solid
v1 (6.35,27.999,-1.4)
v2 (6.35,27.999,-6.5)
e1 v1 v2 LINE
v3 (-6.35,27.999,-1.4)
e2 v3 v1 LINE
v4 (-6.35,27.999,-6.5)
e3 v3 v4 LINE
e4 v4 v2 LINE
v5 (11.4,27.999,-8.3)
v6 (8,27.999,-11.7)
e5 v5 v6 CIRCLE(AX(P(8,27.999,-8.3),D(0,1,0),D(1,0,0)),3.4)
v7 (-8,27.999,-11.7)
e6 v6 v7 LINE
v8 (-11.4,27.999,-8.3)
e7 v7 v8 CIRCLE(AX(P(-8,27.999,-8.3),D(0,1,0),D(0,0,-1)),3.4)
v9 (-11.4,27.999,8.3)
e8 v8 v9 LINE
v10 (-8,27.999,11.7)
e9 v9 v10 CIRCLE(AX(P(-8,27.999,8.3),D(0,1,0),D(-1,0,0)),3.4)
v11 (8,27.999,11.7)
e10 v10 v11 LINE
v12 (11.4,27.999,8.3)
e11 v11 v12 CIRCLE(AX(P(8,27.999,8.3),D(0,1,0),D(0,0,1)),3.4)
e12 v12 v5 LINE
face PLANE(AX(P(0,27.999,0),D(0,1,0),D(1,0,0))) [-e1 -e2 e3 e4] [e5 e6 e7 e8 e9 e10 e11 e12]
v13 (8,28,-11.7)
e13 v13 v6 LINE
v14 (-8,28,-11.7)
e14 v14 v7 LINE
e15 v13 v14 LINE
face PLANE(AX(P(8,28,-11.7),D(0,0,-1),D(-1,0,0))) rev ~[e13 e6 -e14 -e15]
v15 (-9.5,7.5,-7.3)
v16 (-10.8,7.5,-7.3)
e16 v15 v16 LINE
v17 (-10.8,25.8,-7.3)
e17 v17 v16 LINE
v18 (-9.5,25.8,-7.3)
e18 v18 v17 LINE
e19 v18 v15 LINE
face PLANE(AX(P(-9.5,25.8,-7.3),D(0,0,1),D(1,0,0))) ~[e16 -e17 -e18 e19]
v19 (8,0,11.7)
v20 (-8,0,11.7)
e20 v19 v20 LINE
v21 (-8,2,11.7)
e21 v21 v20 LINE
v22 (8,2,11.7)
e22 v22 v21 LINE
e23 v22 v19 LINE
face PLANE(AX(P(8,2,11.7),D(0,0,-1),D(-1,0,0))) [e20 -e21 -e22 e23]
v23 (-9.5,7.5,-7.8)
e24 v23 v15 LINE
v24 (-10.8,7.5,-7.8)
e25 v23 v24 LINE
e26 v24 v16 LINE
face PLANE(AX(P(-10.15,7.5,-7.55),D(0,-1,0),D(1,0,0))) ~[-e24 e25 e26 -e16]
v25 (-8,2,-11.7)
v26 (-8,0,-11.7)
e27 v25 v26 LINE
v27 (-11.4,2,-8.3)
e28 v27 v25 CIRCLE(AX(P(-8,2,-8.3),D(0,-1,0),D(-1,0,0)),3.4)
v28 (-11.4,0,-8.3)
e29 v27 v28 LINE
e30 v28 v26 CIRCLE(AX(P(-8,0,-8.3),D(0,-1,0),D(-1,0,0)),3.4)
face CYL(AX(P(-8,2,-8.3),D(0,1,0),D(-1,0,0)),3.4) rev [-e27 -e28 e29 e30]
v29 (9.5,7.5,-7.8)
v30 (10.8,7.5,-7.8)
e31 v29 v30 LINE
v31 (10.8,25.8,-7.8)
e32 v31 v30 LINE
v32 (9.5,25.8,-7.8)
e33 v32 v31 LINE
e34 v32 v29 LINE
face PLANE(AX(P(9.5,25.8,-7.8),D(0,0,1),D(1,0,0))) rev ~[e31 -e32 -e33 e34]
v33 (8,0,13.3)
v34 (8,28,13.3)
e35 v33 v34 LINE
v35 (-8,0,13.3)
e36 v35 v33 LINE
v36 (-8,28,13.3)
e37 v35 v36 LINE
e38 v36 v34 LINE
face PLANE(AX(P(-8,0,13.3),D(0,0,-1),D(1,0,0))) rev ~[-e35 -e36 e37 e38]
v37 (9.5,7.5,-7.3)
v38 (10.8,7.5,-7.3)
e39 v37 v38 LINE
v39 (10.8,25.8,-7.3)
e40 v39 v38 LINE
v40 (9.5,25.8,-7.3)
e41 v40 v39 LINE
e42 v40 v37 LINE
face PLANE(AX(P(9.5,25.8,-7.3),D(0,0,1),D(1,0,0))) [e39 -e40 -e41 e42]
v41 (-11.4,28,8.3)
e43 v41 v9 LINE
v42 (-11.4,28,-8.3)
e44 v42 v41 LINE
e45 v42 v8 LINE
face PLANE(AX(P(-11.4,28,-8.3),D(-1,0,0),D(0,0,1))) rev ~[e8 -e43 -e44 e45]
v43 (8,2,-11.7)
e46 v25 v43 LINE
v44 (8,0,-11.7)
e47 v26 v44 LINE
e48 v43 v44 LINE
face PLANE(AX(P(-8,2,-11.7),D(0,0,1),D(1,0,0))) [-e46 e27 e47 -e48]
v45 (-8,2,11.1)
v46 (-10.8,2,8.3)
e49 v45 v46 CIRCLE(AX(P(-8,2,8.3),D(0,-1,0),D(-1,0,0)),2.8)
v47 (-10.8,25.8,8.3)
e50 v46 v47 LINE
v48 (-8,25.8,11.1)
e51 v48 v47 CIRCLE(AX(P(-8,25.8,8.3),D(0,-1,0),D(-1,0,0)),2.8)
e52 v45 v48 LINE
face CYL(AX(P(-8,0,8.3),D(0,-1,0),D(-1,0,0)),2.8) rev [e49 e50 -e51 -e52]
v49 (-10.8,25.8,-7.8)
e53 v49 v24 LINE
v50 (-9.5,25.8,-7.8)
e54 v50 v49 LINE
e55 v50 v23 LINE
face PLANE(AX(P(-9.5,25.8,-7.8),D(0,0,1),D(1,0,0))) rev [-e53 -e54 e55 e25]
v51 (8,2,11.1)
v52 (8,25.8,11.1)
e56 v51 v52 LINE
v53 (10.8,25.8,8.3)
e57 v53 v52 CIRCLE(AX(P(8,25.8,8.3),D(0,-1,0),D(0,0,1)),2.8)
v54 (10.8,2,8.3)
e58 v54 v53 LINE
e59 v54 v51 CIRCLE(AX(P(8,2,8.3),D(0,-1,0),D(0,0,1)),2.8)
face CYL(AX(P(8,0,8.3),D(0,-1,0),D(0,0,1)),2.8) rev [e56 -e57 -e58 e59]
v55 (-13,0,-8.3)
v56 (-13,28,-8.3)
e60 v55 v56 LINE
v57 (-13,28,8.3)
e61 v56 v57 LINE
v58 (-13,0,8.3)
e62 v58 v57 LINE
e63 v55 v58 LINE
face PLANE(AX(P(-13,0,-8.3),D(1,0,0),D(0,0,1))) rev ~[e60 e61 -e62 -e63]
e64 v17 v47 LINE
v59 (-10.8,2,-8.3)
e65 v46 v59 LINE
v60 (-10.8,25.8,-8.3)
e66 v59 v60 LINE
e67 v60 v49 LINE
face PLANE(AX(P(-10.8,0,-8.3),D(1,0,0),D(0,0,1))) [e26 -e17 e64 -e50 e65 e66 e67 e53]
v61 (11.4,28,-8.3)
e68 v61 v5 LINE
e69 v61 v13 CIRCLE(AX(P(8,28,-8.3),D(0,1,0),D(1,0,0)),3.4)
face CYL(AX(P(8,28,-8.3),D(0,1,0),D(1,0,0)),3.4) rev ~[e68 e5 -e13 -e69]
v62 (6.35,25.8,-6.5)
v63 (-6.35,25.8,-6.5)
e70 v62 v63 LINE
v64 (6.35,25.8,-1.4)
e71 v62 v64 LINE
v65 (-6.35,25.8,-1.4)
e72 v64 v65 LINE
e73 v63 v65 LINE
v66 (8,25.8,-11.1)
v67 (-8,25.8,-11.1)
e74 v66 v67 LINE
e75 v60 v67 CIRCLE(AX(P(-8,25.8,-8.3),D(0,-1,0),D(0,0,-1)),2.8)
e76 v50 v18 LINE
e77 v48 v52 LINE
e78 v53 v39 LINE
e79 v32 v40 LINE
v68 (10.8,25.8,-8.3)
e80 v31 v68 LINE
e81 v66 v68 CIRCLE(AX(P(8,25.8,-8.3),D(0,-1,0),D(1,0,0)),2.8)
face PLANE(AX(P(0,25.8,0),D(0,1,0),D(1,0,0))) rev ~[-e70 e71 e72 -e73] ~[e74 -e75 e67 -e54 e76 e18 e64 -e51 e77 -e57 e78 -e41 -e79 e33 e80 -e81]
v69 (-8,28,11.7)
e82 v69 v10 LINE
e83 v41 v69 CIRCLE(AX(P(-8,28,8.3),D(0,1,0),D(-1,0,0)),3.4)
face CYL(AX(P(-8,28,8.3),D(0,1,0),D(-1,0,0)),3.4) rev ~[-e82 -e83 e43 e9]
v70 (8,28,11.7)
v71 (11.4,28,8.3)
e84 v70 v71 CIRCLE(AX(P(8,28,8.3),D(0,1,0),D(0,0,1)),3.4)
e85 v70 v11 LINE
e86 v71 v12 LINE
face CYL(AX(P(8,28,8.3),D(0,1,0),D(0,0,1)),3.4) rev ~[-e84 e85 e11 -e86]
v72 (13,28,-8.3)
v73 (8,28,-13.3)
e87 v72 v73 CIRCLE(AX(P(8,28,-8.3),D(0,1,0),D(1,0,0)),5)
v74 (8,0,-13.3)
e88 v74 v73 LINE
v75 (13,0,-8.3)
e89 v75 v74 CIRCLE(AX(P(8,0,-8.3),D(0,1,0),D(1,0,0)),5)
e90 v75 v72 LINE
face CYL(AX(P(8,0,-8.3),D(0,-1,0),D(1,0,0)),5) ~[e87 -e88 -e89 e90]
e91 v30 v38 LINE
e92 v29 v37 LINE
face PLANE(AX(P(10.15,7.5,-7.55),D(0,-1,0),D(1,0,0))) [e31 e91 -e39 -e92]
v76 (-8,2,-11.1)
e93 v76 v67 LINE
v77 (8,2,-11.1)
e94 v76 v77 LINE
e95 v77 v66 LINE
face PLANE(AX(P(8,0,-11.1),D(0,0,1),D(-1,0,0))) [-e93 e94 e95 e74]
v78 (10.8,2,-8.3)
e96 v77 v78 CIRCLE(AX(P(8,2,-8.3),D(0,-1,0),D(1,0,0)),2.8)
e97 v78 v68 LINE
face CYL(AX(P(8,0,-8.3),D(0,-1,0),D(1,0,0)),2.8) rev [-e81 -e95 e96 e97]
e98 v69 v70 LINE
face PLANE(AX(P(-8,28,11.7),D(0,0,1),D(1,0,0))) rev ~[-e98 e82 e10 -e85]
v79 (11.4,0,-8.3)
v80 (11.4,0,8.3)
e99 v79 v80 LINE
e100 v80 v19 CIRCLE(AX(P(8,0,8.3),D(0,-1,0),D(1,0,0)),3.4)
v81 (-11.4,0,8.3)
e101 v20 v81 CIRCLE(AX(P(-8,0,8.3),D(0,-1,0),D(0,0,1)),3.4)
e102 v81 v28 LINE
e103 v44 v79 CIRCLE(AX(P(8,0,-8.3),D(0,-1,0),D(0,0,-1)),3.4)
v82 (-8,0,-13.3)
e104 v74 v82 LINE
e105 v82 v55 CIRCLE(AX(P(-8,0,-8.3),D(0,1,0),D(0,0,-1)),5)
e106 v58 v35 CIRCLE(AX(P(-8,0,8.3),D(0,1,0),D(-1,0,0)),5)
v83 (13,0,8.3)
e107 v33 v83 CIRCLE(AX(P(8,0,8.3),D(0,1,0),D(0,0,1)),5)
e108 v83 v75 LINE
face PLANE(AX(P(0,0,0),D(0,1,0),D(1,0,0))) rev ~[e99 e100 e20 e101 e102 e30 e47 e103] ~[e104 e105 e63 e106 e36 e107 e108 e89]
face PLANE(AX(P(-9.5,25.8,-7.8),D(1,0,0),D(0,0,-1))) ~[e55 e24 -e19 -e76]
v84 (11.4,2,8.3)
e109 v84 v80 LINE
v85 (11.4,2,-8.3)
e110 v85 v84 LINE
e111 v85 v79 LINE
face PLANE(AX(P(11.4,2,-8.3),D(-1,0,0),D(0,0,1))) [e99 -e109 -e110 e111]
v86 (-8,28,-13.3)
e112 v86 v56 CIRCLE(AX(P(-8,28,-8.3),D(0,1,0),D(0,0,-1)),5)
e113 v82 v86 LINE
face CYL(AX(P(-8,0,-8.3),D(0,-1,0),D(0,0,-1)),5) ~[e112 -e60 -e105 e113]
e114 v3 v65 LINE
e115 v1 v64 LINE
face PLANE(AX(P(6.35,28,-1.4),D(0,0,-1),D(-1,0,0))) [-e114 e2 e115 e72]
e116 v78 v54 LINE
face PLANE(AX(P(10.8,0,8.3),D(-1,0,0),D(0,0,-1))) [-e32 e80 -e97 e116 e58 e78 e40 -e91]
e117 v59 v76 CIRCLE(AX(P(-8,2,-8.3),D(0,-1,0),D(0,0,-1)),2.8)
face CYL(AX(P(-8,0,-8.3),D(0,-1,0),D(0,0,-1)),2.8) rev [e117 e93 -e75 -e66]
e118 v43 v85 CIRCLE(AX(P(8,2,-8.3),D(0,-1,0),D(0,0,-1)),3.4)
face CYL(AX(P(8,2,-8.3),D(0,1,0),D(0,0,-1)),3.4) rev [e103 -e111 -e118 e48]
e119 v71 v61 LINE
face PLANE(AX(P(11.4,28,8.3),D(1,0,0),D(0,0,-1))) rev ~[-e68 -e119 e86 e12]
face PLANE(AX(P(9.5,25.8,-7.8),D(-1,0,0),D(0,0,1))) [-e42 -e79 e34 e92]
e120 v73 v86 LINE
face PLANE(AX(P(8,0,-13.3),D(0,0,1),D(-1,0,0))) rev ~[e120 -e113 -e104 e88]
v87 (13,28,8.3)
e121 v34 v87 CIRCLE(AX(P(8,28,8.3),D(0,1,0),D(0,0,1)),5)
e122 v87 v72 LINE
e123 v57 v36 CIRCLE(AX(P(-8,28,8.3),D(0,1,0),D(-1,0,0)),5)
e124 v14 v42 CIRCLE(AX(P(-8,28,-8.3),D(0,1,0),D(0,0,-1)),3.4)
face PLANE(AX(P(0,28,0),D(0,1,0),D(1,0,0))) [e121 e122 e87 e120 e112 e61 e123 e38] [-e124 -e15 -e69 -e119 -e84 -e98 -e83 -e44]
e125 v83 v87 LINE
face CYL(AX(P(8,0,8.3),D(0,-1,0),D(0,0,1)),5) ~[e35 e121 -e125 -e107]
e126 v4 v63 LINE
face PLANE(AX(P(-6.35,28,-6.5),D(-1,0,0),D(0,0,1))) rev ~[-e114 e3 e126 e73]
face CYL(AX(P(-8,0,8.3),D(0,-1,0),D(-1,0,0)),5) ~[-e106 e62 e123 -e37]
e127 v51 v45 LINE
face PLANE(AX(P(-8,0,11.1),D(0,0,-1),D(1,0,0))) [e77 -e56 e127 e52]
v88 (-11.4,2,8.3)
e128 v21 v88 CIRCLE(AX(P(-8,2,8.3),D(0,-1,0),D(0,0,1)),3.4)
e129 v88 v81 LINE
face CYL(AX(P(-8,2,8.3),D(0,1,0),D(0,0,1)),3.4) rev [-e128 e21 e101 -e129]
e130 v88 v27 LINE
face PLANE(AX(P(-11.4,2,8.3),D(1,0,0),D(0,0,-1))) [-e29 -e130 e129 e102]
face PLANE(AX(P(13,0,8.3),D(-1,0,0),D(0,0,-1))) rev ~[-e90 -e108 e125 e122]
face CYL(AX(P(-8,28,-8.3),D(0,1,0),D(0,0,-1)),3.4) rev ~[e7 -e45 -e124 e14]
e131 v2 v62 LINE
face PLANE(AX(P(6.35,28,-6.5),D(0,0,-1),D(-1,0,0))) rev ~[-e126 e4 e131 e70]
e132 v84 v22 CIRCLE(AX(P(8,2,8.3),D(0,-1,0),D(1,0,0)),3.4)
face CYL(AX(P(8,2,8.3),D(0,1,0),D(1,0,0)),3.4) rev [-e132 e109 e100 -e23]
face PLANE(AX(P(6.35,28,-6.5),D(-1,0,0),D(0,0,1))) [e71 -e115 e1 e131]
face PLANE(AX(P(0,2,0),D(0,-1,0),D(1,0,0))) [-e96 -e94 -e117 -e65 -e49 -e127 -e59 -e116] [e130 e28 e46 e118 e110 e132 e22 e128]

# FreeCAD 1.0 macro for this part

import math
import FreeCAD as App
import Part
import Sketcher

V = App.Vector
Q = App.Units.Quantity


def faces_at(feature, points):
    """Names of the faces that lie closest to the given points."""
    faces = feature.Shape.Faces
    near = lambda p: min(range(len(faces)), key=lambda i: faces[i].distToShape(Part.Vertex(*p))[0])
    return sorted({f"Face{near(p) + 1}" for p in points})

doc = App.newDocument("Part")
body = doc.addObject("PartDesign::Body", "Body")

sketch1 = body.newObject("Sketcher::SketchObject", "Sketch")
sketch1.AttachmentSupport = (doc.getObject("XZ_Plane"), [""])
sketch1.MapMode = "FlatFace"
sketch1.addGeometry(Part.LineSegment(V(-8, 13, 0), V(8, 13, 0)), False)
sketch1.addGeometry(Part.ArcOfCircle(Part.Circle(V(8, 8, 0), V(0, 0, 1), 5), math.radians(0), math.radians(90)), False)
sketch1.addGeometry(Part.LineSegment(V(13, 8, 0), V(13, -8, 0)), False)
sketch1.addGeometry(Part.ArcOfCircle(Part.Circle(V(8, -8, 0), V(0, 0, 1), 5), math.radians(-90), math.radians(0)), False)
sketch1.addGeometry(Part.LineSegment(V(8, -13, 0), V(-8, -13, 0)), False)
sketch1.addGeometry(Part.ArcOfCircle(Part.Circle(V(-8, -8, 0), V(0, 0, 1), 5), math.radians(180), math.radians(270)), False)
sketch1.addGeometry(Part.LineSegment(V(-13, -8, 0), V(-13, 8, 0)), False)
sketch1.addGeometry(Part.ArcOfCircle(Part.Circle(V(-8, 8, 0), V(0, 0, 1), 5), math.radians(90), math.radians(180)), False)
sketch1.addConstraint(Sketcher.Constraint("Tangent", 0, 2, 1, 2))
sketch1.addConstraint(Sketcher.Constraint("Tangent", 1, 1, 2, 1))
sketch1.addConstraint(Sketcher.Constraint("Tangent", 2, 2, 3, 2))
sketch1.addConstraint(Sketcher.Constraint("Tangent", 3, 1, 4, 1))
sketch1.addConstraint(Sketcher.Constraint("Tangent", 4, 2, 5, 2))
sketch1.addConstraint(Sketcher.Constraint("Tangent", 5, 1, 6, 1))
sketch1.addConstraint(Sketcher.Constraint("Tangent", 6, 2, 7, 2))
sketch1.addConstraint(Sketcher.Constraint("Tangent", 7, 1, 0, 1))
sketch1.addConstraint(Sketcher.Constraint("Horizontal", 0))
sketch1.addConstraint(Sketcher.Constraint("Vertical", 2))
sketch1.addConstraint(Sketcher.Constraint("Horizontal", 4))
sketch1.addConstraint(Sketcher.Constraint("Vertical", 6))
sketch1.addConstraint(Sketcher.Constraint("Equal", 1, 3))
sketch1.addConstraint(Sketcher.Constraint("Equal", 3, 5))
sketch1.addConstraint(Sketcher.Constraint("Equal", 5, 7))
sketch1.addConstraint(Sketcher.Constraint("Symmetric", 1, 3, 5, 3, -1, 1))
sketch1.addConstraint(Sketcher.Constraint("Radius", 1, Q("5 mm")))
sketch1.addConstraint(Sketcher.Constraint("DistanceX", 0, 1, 0, 2, Q("16 mm")))
sketch1.addConstraint(Sketcher.Constraint("DistanceY", 2, 2, 2, 1, Q("16.6 mm")))
pad1 = body.newObject("PartDesign::Pad", "Pad")
pad1.Profile = sketch1
pad1.Length = 28
pad1.Reversed = True
doc.recompute()

thickness = body.newObject("PartDesign::Thickness", "Thickness")
thickness.Base = (pad1, faces_at(pad1, [(0, 0, 0)]))
thickness.Value = 2.2
thickness.Reversed = True
thickness.Join = "Intersection"

sketch2 = body.newObject("Sketcher::SketchObject", "Sketch001")
sketch2.AttachmentSupport = (doc.getObject("XZ_Plane"), [""])
sketch2.MapMode = "FlatFace"
sketch2.AttachmentOffset = App.Placement(V(0, 0, -28), App.Rotation())
sketch2.addGeometry(Part.LineSegment(V(6, -1, 0), V(6, -6, 0)), False)
sketch2.addGeometry(Part.LineSegment(V(6, -6, 0), V(-6, -6, 0)), False)
sketch2.addGeometry(Part.LineSegment(V(-6, -6, 0), V(-6, -1, 0)), False)
sketch2.addGeometry(Part.LineSegment(V(-6, -1, 0), V(6, -1, 0)), False)
sketch2.addConstraint(Sketcher.Constraint("Coincident", 0, 2, 1, 1))
sketch2.addConstraint(Sketcher.Constraint("Coincident", 1, 2, 2, 1))
sketch2.addConstraint(Sketcher.Constraint("Coincident", 2, 2, 3, 1))
sketch2.addConstraint(Sketcher.Constraint("Coincident", 3, 2, 0, 1))
sketch2.addConstraint(Sketcher.Constraint("Vertical", 0))
sketch2.addConstraint(Sketcher.Constraint("Horizontal", 1))
sketch2.addConstraint(Sketcher.Constraint("Vertical", 2))
sketch2.addConstraint(Sketcher.Constraint("Horizontal", 3))
sketch2.addConstraint(Sketcher.Constraint("DistanceX", 1, 2, 1, 1, Q("12.7 mm")))
sketch2.addConstraint(Sketcher.Constraint("DistanceY", 0, 2, 0, 1, Q("5.1 mm")))
sketch2.addConstraint(Sketcher.Constraint("DistanceY", 0, 2, -1, 1, Q("6.5 mm")))
sketch2.addConstraint(Sketcher.Constraint("DistanceX", -1, 1, 0, 2, Q("6.35 mm")))
pocket1 = body.newObject("PartDesign::Pocket", "Pocket")
pocket1.Profile = sketch2
pocket1.Length = 5
pocket1.Reversed = True

sketch3 = body.newObject("Sketcher::SketchObject", "Sketch002")
sketch3.AttachmentSupport = (doc.getObject("XZ_Plane"), [""])
sketch3.MapMode = "FlatFace"
sketch3.AttachmentOffset = App.Placement(V(0, 0, -28), App.Rotation())
sketch3.addGeometry(Part.LineSegment(V(-8, 11.7, 0), V(8, 11.7, 0)), False)
sketch3.addGeometry(Part.ArcOfCircle(Part.Circle(V(8, 8.3, 0), V(0, 0, 1), 3.4), math.radians(0), math.radians(90)), False)
sketch3.addGeometry(Part.LineSegment(V(11.4, 8.3, 0), V(11.4, -8.3, 0)), False)
sketch3.addGeometry(Part.ArcOfCircle(Part.Circle(V(8, -8.3, 0), V(0, 0, 1), 3.4), math.radians(-90), math.radians(0)), False)
sketch3.addGeometry(Part.LineSegment(V(8, -11.7, 0), V(-8, -11.7, 0)), False)
sketch3.addGeometry(Part.ArcOfCircle(Part.Circle(V(-8, -8.3, 0), V(0, 0, 1), 3.4), math.radians(180), math.radians(270)), False)
sketch3.addGeometry(Part.LineSegment(V(-11.4, -8.3, 0), V(-11.4, 8.3, 0)), False)
sketch3.addGeometry(Part.ArcOfCircle(Part.Circle(V(-8, 8.3, 0), V(0, 0, 1), 3.4), math.radians(90), math.radians(180)), False)
sketch3.addConstraint(Sketcher.Constraint("Tangent", 0, 2, 1, 2))
sketch3.addConstraint(Sketcher.Constraint("Tangent", 1, 1, 2, 1))
sketch3.addConstraint(Sketcher.Constraint("Tangent", 2, 2, 3, 2))
sketch3.addConstraint(Sketcher.Constraint("Tangent", 3, 1, 4, 1))
sketch3.addConstraint(Sketcher.Constraint("Tangent", 4, 2, 5, 2))
sketch3.addConstraint(Sketcher.Constraint("Tangent", 5, 1, 6, 1))
sketch3.addConstraint(Sketcher.Constraint("Tangent", 6, 2, 7, 2))
sketch3.addConstraint(Sketcher.Constraint("Tangent", 7, 1, 0, 1))
sketch3.addConstraint(Sketcher.Constraint("Horizontal", 0))
sketch3.addConstraint(Sketcher.Constraint("Vertical", 2))
sketch3.addConstraint(Sketcher.Constraint("Horizontal", 4))
sketch3.addConstraint(Sketcher.Constraint("Vertical", 6))
sketch3.addConstraint(Sketcher.Constraint("Equal", 1, 3))
sketch3.addConstraint(Sketcher.Constraint("Equal", 3, 5))
sketch3.addConstraint(Sketcher.Constraint("Equal", 5, 7))
sketch3.addConstraint(Sketcher.Constraint("Symmetric", 1, 3, 5, 3, -1, 1))
sketch3.addConstraint(Sketcher.Constraint("Radius", 1, Q("3.4 mm")))
sketch3.addConstraint(Sketcher.Constraint("DistanceX", 0, 1, 0, 2, Q("16 mm")))
sketch3.addConstraint(Sketcher.Constraint("DistanceY", 2, 2, 2, 1, Q("16.6 mm")))
pocket2 = body.newObject("PartDesign::Pocket", "Pocket001")
pocket2.Profile = sketch3
pocket2.Length = 0.001
pocket2.Reversed = True

sketch4 = body.newObject("Sketcher::SketchObject", "Sketch003")
sketch4.AttachmentSupport = (doc.getObject("XZ_Plane"), [""])
sketch4.MapMode = "FlatFace"
sketch4.AttachmentOffset = App.Placement(V(0, 0, -2), App.Rotation())
sketch4.addGeometry(Part.LineSegment(V(-8, -11.7, 0), V(8, -11.7, 0)), False)
sketch4.addGeometry(Part.ArcOfCircle(Part.Circle(V(8, -8.3, 0), V(0, 0, 1), 3.4), math.radians(-90), math.radians(0)), False)
sketch4.addGeometry(Part.LineSegment(V(11.4, -8.3, 0), V(11.4, 8.3, 0)), False)
sketch4.addGeometry(Part.ArcOfCircle(Part.Circle(V(8, 8.3, 0), V(0, 0, 1), 3.4), math.radians(0), math.radians(90)), False)
sketch4.addGeometry(Part.LineSegment(V(8, 11.7, 0), V(-8, 11.7, 0)), False)
sketch4.addGeometry(Part.ArcOfCircle(Part.Circle(V(-8, 8.3, 0), V(0, 0, 1), 3.4), math.radians(90), math.radians(180)), False)
sketch4.addGeometry(Part.LineSegment(V(-11.4, 8.3, 0), V(-11.4, -8.3, 0)), False)
sketch4.addGeometry(Part.ArcOfCircle(Part.Circle(V(-8, -8.3, 0), V(0, 0, 1), 3.4), math.radians(180), math.radians(270)), False)
sketch4.addConstraint(Sketcher.Constraint("Tangent", 0, 2, 1, 1))
sketch4.addConstraint(Sketcher.Constraint("Tangent", 1, 2, 2, 1))
sketch4.addConstraint(Sketcher.Constraint("Tangent", 2, 2, 3, 1))
sketch4.addConstraint(Sketcher.Constraint("Tangent", 3, 2, 4, 1))
sketch4.addConstraint(Sketcher.Constraint("Tangent", 4, 2, 5, 1))
sketch4.addConstraint(Sketcher.Constraint("Tangent", 5, 2, 6, 1))
sketch4.addConstraint(Sketcher.Constraint("Tangent", 6, 2, 7, 1))
sketch4.addConstraint(Sketcher.Constraint("Tangent", 7, 2, 0, 1))
sketch4.addConstraint(Sketcher.Constraint("Horizontal", 0))
sketch4.addConstraint(Sketcher.Constraint("Vertical", 2))
sketch4.addConstraint(Sketcher.Constraint("Horizontal", 4))
sketch4.addConstraint(Sketcher.Constraint("Vertical", 6))
sketch4.addConstraint(Sketcher.Constraint("Equal", 1, 3))
sketch4.addConstraint(Sketcher.Constraint("Equal", 3, 5))
sketch4.addConstraint(Sketcher.Constraint("Equal", 5, 7))
sketch4.addConstraint(Sketcher.Constraint("Symmetric", 1, 3, 5, 3, -1, 1))
sketch4.addConstraint(Sketcher.Constraint("Radius", 1, Q("3.4 mm")))
sketch4.addConstraint(Sketcher.Constraint("DistanceX", 0, 1, 0, 2, Q("16 mm")))
sketch4.addConstraint(Sketcher.Constraint("DistanceY", 2, 1, 2, 2, Q("16.6 mm")))
pocket3 = body.newObject("PartDesign::Pocket", "Pocket002")
pocket3.Profile = sketch4
pocket3.Length = 2
pocket3.Reversed = True

sketch5 = body.newObject("Sketcher::SketchObject", "Sketch004")
sketch5.AttachmentSupport = (doc.getObject("XZ_Plane"), [""])
sketch5.MapMode = "FlatFace"
sketch5.AttachmentOffset = App.Placement(V(0, 0, -25.8), App.Rotation())
sketch5.addGeometry(Part.LineSegment(V(9.5, -7.3, 0), V(9.5, -7.8, 0)), False)
sketch5.addGeometry(Part.LineSegment(V(9.5, -7.8, 0), V(10.8, -7.8, 0)), False)
sketch5.addGeometry(Part.LineSegment(V(10.8, -7.8, 0), V(10.8, -7.3, 0)), False)
sketch5.addGeometry(Part.LineSegment(V(10.8, -7.3, 0), V(9.5, -7.3, 0)), False)
sketch5.addConstraint(Sketcher.Constraint("Coincident", 0, 2, 1, 1))
sketch5.addConstraint(Sketcher.Constraint("Coincident", 1, 2, 2, 1))
sketch5.addConstraint(Sketcher.Constraint("Coincident", 2, 2, 3, 1))
sketch5.addConstraint(Sketcher.Constraint("Coincident", 3, 2, 0, 1))
sketch5.addConstraint(Sketcher.Constraint("Vertical", 0))
sketch5.addConstraint(Sketcher.Constraint("Horizontal", 1))
sketch5.addConstraint(Sketcher.Constraint("Vertical", 2))
sketch5.addConstraint(Sketcher.Constraint("Horizontal", 3))
sketch5.addConstraint(Sketcher.Constraint("DistanceX", 1, 1, 1, 2, Q("1.3 mm")))
sketch5.addConstraint(Sketcher.Constraint("DistanceY", 0, 2, 0, 1, Q("0.5 mm")))
sketch5.addConstraint(Sketcher.Constraint("DistanceX", -1, 1, 0, 2, Q("9.5 mm")))
sketch5.addConstraint(Sketcher.Constraint("DistanceY", 0, 2, -1, 1, Q("7.8 mm")))
pad2 = body.newObject("PartDesign::Pad", "Pad001")
pad2.Profile = sketch5
pad2.Length = 18.3
doc.recompute()

mirrored = body.newObject("PartDesign::Mirrored", "Mirrored")
mirrored.Originals = [pad2]
mirrored.MirrorPlane = (doc.getObject("YZ_Plane"), [""])
body.Tip = mirrored

doc.recompute()
